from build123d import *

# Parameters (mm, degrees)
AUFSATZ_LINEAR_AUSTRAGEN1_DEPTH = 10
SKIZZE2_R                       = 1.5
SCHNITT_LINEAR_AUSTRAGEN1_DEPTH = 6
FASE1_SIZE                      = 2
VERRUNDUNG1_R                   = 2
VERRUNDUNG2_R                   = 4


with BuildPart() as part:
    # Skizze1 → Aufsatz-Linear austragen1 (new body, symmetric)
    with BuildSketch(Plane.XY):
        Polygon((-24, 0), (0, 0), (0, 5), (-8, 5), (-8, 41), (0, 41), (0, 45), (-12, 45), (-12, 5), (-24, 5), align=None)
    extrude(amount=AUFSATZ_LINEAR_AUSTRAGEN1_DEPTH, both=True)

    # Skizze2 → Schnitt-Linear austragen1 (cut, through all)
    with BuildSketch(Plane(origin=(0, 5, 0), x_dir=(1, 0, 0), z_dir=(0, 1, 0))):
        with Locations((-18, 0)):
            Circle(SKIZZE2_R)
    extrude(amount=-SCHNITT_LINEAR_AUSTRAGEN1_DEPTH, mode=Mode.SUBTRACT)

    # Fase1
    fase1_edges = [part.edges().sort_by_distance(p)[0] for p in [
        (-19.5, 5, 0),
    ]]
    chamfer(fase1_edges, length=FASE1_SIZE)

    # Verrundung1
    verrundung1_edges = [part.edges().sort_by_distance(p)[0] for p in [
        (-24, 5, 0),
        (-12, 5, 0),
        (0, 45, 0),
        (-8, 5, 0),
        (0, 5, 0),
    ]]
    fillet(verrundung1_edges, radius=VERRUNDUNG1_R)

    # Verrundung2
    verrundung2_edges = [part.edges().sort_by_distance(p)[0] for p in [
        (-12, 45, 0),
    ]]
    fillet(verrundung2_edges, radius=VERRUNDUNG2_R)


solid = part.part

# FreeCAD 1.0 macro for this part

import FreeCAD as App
import Part
import Sketcher


def edges_at(feature, points):
    """Names of the edges that pass closest to the given points."""
    edges = feature.Shape.Edges
    near = lambda p: min(range(len(edges)), key=lambda i: edges[i].distToShape(Part.Vertex(*p))[0])
    return sorted({f"Edge{near(p) + 1}" for p in points})

doc = App.newDocument("Part")
body = doc.addObject("PartDesign::Body", "Body")

# Sketch on XY plane
sketch1 = body.newObject("Sketcher::SketchObject", "Sketch")
sketch1.AttachmentSupport = (doc.getObject("XY_Plane"), [""])
sketch1.MapMode = "FlatFace"
sketch1.addGeometry(Part.LineSegment(App.Vector(-24, 0, 0), App.Vector(0, 0, 0)), False)
sketch1.addGeometry(Part.LineSegment(App.Vector(0, 0, 0), App.Vector(0, 5, 0)), False)
sketch1.addGeometry(Part.LineSegment(App.Vector(0, 5, 0), App.Vector(-8, 5, 0)), False)
sketch1.addGeometry(Part.LineSegment(App.Vector(-8, 5, 0), App.Vector(-8, 41, 0)), False)
sketch1.addGeometry(Part.LineSegment(App.Vector(-8, 41, 0), App.Vector(0, 41, 0)), False)
sketch1.addGeometry(Part.LineSegment(App.Vector(0, 41, 0), App.Vector(0, 45, 0)), False)
sketch1.addGeometry(Part.LineSegment(App.Vector(0, 45, 0), App.Vector(-12, 45, 0)), False)
sketch1.addGeometry(Part.LineSegment(App.Vector(-12, 45, 0), App.Vector(-12, 5, 0)), False)
sketch1.addGeometry(Part.LineSegment(App.Vector(-12, 5, 0), App.Vector(-24, 5, 0)), False)
sketch1.addGeometry(Part.LineSegment(App.Vector(-24, 5, 0), App.Vector(-24, 0, 0)), False)
sketch1.addConstraint(Sketcher.Constraint("Coincident", 0, 2, 1, 1))
sketch1.addConstraint(Sketcher.Constraint("Coincident", 1, 2, 2, 1))
sketch1.addConstraint(Sketcher.Constraint("Coincident", 2, 2, 3, 1))
sketch1.addConstraint(Sketcher.Constraint("Coincident", 3, 2, 4, 1))
sketch1.addConstraint(Sketcher.Constraint("Coincident", 4, 2, 5, 1))
sketch1.addConstraint(Sketcher.Constraint("Coincident", 5, 2, 6, 1))
sketch1.addConstraint(Sketcher.Constraint("Coincident", 6, 2, 7, 1))
sketch1.addConstraint(Sketcher.Constraint("Coincident", 7, 2, 8, 1))
sketch1.addConstraint(Sketcher.Constraint("Coincident", 8, 2, 9, 1))
sketch1.addConstraint(Sketcher.Constraint("Coincident", 9, 2, 0, 1))
sketch1.addConstraint(Sketcher.Constraint("Horizontal", 0))
sketch1.addConstraint(Sketcher.Constraint("Vertical", 1))
sketch1.addConstraint(Sketcher.Constraint("Horizontal", 2))
sketch1.addConstraint(Sketcher.Constraint("Vertical", 3))
sketch1.addConstraint(Sketcher.Constraint("Horizontal", 4))
sketch1.addConstraint(Sketcher.Constraint("Vertical", 5))
sketch1.addConstraint(Sketcher.Constraint("Horizontal", 6))
sketch1.addConstraint(Sketcher.Constraint("Vertical", 7))
sketch1.addConstraint(Sketcher.Constraint("Horizontal", 8))
sketch1.addConstraint(Sketcher.Constraint("Vertical", 9))
sketch1.addConstraint(Sketcher.Constraint("Coincident", 0, 2, -1, 1))
sketch1.addConstraint(Sketcher.Constraint("PointOnObject", 4, 2, -2))
sketch1.addConstraint(Sketcher.Constraint("Horizontal", 2, 2, 7, 2))
sketch1.addConstraint(Sketcher.Constraint("Equal", 6, 8))
sketch1.addConstraint(Sketcher.Constraint("DistanceX", 0, 1, 0, 2, 24.0))
sketch1.addConstraint(Sketcher.Constraint("DistanceX", 2, 2, 2, 1, 8.0))
sketch1.addConstraint(Sketcher.Constraint("DistanceY", 1, 1, 1, 2, 5.0))
sketch1.addConstraint(Sketcher.Constraint("DistanceY", 3, 1, 3, 2, 36.0))
sketch1.addConstraint(Sketcher.Constraint("DistanceY", 5, 1, 5, 2, 4.0))
pad1 = body.newObject("PartDesign::Pad", "Pad")
pad1.Profile = sketch1
pad1.Length = 20
pad1.Midplane = True

# Sketch on XZ plane
sketch2 = body.newObject("Sketcher::SketchObject", "Sketch001")
sketch2.AttachmentSupport = (doc.getObject("XZ_Plane"), [""])
sketch2.MapMode = "FlatFace"
sketch2.AttachmentOffset = App.Placement(App.Vector(0, 0, -5), App.Rotation())
sketch2.addGeometry(Part.Circle(App.Vector(-18, 0, 0), App.Vector(0, 0, 1), 1.5), False)
sketch2.addConstraint(Sketcher.Constraint("PointOnObject", 0, 3, -1))
sketch2.addConstraint(Sketcher.Constraint("Diameter", 0, 3.0))
sketch2.addConstraint(Sketcher.Constraint("DistanceX", 0, 3, -1, 1, 18.0))
pocket1 = body.newObject("PartDesign::Pocket", "Pocket")
pocket1.Profile = sketch2
pocket1.Type = "ThroughAll"
pocket1.Reversed = True
doc.recompute()

chamfer = body.newObject("PartDesign::Chamfer", "Chamfer")
chamfer.Base = (pocket1, edges_at(pocket1, [(-19.5, 5, 0)]))
chamfer.Size = 2
doc.recompute()

fillet = body.newObject("PartDesign::Fillet", "Fillet")
fillet.Base = (chamfer, edges_at(chamfer, [
    (-24, 5, 0),
    (-12, 5, 0),
    (0, 45, 0),
    (-8, 5, 0),
    (0, 5, 0),
]))
fillet.Radius = 2
doc.recompute()

fillet2 = body.newObject("PartDesign::Fillet", "Fillet001")
fillet2.Base = (fillet, edges_at(fillet, [(-12, 45, 0)]))
fillet2.Radius = 4

doc.recompute()
